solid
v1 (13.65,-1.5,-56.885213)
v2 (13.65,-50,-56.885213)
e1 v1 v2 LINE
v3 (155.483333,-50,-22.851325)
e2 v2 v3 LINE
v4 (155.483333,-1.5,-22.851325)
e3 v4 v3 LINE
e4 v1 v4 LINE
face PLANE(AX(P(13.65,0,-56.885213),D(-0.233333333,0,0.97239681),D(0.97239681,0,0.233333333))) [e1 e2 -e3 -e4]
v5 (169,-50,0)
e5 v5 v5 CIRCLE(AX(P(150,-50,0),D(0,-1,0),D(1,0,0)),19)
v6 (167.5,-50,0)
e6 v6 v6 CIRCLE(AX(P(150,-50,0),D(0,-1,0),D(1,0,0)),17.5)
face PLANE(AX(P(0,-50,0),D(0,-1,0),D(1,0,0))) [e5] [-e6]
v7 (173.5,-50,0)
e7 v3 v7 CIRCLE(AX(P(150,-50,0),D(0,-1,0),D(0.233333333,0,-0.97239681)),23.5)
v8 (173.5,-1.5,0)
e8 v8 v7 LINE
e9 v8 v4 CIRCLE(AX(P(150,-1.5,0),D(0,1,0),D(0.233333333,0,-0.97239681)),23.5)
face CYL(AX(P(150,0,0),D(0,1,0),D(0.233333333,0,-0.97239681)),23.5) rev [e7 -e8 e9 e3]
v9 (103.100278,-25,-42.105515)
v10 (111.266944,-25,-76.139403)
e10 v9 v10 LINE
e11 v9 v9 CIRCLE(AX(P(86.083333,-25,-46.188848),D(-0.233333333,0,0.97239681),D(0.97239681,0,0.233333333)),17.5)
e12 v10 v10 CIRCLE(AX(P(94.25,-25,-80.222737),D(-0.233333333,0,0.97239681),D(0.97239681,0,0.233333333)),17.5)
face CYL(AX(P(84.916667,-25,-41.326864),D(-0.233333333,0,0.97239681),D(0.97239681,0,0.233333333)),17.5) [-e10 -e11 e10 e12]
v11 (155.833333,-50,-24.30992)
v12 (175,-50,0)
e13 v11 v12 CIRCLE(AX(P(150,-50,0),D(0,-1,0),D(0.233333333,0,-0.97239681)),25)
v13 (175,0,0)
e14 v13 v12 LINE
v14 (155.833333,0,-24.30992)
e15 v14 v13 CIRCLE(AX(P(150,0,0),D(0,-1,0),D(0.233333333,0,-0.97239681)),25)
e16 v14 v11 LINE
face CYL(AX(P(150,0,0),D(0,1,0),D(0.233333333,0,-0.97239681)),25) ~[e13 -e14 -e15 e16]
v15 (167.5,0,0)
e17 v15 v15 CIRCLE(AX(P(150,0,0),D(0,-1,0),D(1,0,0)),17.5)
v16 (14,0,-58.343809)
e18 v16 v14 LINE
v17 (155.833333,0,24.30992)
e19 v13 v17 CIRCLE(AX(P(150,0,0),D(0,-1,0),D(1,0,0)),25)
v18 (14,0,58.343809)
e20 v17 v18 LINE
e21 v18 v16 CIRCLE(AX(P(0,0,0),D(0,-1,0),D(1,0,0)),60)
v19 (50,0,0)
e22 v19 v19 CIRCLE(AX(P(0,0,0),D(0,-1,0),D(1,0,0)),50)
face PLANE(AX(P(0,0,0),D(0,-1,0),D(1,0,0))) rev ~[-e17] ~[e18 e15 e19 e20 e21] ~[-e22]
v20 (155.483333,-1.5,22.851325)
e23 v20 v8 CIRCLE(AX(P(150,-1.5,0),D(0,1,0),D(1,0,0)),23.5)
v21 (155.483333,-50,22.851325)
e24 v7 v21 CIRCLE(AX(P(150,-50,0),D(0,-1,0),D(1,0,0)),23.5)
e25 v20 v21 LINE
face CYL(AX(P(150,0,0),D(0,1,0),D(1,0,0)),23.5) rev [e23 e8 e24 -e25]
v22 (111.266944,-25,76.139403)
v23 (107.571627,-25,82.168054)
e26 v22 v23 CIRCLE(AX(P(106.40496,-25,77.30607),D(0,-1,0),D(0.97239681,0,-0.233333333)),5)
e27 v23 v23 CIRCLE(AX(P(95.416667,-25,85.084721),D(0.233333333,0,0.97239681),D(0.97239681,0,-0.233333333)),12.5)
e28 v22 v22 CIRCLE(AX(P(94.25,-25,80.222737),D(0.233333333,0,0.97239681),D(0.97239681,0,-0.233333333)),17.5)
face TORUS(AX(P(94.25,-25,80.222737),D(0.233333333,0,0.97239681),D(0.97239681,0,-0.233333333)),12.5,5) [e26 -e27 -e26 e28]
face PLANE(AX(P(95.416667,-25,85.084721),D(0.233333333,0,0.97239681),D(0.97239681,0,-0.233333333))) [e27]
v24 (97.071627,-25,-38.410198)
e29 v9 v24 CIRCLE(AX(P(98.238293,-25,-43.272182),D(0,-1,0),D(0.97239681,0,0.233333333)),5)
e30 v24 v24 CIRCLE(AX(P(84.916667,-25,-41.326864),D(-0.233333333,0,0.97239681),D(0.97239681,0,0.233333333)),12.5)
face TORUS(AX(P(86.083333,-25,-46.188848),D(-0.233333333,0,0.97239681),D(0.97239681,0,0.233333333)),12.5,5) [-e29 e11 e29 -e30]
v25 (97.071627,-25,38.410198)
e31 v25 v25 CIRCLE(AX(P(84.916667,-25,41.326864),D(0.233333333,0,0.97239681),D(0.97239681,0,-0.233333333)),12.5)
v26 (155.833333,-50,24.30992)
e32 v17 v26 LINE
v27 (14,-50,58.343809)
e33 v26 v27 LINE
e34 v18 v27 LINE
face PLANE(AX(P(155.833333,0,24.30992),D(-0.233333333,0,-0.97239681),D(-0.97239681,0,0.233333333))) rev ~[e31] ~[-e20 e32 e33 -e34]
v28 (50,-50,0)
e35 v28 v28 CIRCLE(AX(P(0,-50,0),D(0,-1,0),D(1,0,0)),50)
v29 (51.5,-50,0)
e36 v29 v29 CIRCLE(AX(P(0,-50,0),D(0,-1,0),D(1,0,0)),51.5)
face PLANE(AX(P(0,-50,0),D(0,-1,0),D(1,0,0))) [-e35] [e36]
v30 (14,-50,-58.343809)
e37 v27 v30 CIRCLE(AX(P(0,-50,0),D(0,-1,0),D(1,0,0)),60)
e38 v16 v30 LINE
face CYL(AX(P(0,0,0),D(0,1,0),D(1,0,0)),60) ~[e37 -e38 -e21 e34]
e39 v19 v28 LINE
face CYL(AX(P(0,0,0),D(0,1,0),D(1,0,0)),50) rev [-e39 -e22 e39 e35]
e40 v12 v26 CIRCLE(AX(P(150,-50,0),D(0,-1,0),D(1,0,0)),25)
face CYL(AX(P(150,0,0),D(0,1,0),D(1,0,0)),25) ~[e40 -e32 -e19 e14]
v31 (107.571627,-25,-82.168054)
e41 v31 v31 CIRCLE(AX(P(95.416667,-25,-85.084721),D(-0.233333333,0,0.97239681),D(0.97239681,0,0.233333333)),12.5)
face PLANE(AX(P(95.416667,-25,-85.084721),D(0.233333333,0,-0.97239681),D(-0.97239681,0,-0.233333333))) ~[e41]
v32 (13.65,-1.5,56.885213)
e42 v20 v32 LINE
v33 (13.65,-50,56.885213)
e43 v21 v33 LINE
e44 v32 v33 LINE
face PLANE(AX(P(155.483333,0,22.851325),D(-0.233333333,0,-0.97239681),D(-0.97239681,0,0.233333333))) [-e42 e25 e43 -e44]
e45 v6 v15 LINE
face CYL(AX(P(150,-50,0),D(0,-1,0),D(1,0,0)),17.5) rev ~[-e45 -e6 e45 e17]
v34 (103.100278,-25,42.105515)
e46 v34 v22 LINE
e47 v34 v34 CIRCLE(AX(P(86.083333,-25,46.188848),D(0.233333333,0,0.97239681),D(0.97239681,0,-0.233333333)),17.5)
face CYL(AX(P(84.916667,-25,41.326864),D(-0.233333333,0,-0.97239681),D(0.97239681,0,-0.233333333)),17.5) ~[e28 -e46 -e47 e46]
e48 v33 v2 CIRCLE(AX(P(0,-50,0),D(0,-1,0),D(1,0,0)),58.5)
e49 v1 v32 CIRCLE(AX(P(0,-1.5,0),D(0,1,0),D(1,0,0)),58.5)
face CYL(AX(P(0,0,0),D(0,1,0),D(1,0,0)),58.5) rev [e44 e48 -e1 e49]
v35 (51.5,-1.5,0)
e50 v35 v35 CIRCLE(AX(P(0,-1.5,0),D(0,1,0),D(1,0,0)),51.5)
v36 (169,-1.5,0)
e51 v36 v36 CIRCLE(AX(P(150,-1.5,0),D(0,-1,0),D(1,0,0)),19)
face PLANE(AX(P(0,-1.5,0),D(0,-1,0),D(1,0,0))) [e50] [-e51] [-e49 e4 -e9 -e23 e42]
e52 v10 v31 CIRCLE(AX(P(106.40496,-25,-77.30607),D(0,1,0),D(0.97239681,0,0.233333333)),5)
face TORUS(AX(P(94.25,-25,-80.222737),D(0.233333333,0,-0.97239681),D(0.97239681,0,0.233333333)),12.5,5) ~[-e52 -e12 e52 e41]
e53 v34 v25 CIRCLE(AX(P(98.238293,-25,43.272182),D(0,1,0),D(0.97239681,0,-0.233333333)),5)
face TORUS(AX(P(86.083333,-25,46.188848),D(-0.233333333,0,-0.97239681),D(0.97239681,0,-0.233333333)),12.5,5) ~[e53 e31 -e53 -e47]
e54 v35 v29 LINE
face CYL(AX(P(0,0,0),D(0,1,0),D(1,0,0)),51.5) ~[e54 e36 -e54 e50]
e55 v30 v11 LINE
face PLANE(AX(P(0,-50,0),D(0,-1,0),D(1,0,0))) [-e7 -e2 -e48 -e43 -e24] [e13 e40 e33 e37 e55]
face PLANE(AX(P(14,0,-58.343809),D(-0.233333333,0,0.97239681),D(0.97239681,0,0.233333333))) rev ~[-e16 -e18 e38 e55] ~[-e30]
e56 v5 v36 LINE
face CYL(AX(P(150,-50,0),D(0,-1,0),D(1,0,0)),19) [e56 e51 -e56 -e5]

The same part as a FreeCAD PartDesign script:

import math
import FreeCAD as App
import Part
import Sketcher

V = App.Vector


def edges_at(feature, points):
    """Names of the edges that pass closest to the given points."""
    edges = feature.Shape.Edges
    near = lambda p: min(range(len(edges)), key=lambda i: edges[i].distToShape(Part.Vertex(*p))[0])
    return sorted({f"Edge{near(p) + 1}" for p in points})


def faces_at(feature, points):
    """Names of the faces that lie closest to the given points."""
    faces = feature.Shape.Faces
    near = lambda p: min(range(len(faces)), key=lambda i: faces[i].distToShape(Part.Vertex(*p))[0])
    return sorted({f"Face{near(p) + 1}" for p in points})

doc = App.newDocument("Part")
body = doc.addObject("PartDesign::Body", "Body")

sketch1 = doc.addObject("Sketcher::SketchObject", "Sketch")
body.addObject(sketch1)
sketch1.AttachmentSupport = (doc.XZ_Plane, [""])
sketch1.MapMode = "FlatFace"
sketch1.addGeometry(Part.ArcOfCircle(Part.Circle(V(0, 0, 0), V(0, 0, 1), 60), math.radians(76.506601), math.radians(283.493399)), False)
sketch1.addGeometry(Part.LineSegment(V(14, -58.343809, 0), V(155.833333, -24.30992, 0)), False)
sketch1.addGeometry(Part.ArcOfCircle(Part.Circle(V(150, 0, 0), V(0, 0, 1), 25), math.radians(-76.506601), math.radians(0)), False)
sketch1.addGeometry(Part.ArcOfCircle(Part.Circle(V(150, 0, 0), V(0, 0, 1), 25), math.radians(0), math.radians(76.506601)), False)
sketch1.addGeometry(Part.LineSegment(V(155.833333, 24.30992, 0), V(14, 58.343809, 0)), False)
sketch1.addGeometry(Part.Circle(V(0, 0, 0), V(0, 0, 1), 50), False)
sketch1.addConstraint(Sketcher.Constraint("Tangent", 0, 2, 1, 1))
sketch1.addConstraint(Sketcher.Constraint("Tangent", 1, 2, 2, 1))
sketch1.addConstraint(Sketcher.Constraint("Tangent", 2, 2, 3, 1))
sketch1.addConstraint(Sketcher.Constraint("Tangent", 3, 2, 4, 1))
sketch1.addConstraint(Sketcher.Constraint("Tangent", 4, 2, 0, 1))
sketch1.addConstraint(Sketcher.Constraint("Coincident", 0, 3, -1, 1))
sketch1.addConstraint(Sketcher.Constraint("Coincident", 5, 3, -1, 1))
sketch1.addConstraint(Sketcher.Constraint("Equal", 2, 3))
sketch1.addConstraint(Sketcher.Constraint("PointOnObject", 2, 3, -1))
sketch1.addConstraint(Sketcher.Constraint("PointOnObject", 2, 2, -1))
sketch1.addConstraint(Sketcher.Constraint("Diameter", 5, 100.0))
sketch1.addConstraint(Sketcher.Constraint("Radius", 0, 60.0))
sketch1.addConstraint(Sketcher.Constraint("Radius", 2, 25.0))
sketch1.addConstraint(Sketcher.Constraint("DistanceX", -1, 1, 2, 3, 150.0))
pad1 = doc.addObject("PartDesign::Pad", "Pad")
body.addObject(pad1)
pad1.Profile = sketch1
pad1.Length = 50

sketch2 = doc.addObject("Sketcher::SketchObject", "Sketch001")
body.addObject(sketch2)
sketch2.AttachmentSupport = (doc.XZ_Plane, [""])
sketch2.MapMode = "FlatFace"
sketch2.AttachmentOffset = App.Placement(V(0, 0, 50), App.Rotation())
sketch2.addGeometry(Part.Circle(V(150, 0, 0), V(0, 0, 1), 17.5), False)
sketch2.addConstraint(Sketcher.Constraint("PointOnObject", 0, 3, -1))
sketch2.addConstraint(Sketcher.Constraint("Diameter", 0, 35.0))
sketch2.addConstraint(Sketcher.Constraint("DistanceX", -1, 1, 0, 3, 150.0))
pocket1 = doc.addObject("PartDesign::Pocket", "Pocket")
body.addObject(pocket1)
pocket1.Profile = sketch2
pocket1.Type = "ThroughAll"
doc.recompute()

thickness = doc.addObject("PartDesign::Thickness", "Thickness")
body.addObject(thickness)
thickness.Base = (pocket1, faces_at(pocket1, [(57.5, -50, 0)]))
thickness.Value = 1.5
thickness.Reversed = True
thickness.Join = "Arc"
body2 = doc.addObject("PartDesign::Body", "Body001")

sketch3 = doc.addObject("Sketcher::SketchObject", "Sketch002")
body2.addObject(sketch3)
sketch3.Placement = App.Placement(V(14, 0, 58.343809), App.Rotation(V(0.97239681, 0, -0.233333333), V(0, 1, 0), V(0.233333333, 0, 0.97239681), "ZXY"))
sketch3.addGeometry(Part.Circle(V(72.929761, -25, 0), V(0, 0, 1), 17.5), False)
sketch3.addConstraint(Sketcher.Constraint("Diameter", 0, 35.0))
sketch3.addConstraint(Sketcher.Constraint("DistanceY", 0, 3, -1, 1, 25.0))
sketch3.addConstraint(Sketcher.Constraint("DistanceX", -1, 1, 0, 3, 72.929761))
pad2 = doc.addObject("PartDesign::Pad", "Pad001")
body2.addObject(pad2)
pad2.Profile = sketch3
pad2.Length = 45
doc.recompute()

fillet = doc.addObject("PartDesign::Fillet", "Fillet")
body2.addObject(fillet)
fillet.Base = (pad2, edges_at(pad2, [(78.4, -25, 89.168), (67.9, -25, 45.41)]))
fillet.Radius = 5
doc.recompute()

body3 = doc.addObject("PartDesign::Body", "Body002")
body3.BaseFeature = body2
boolean = doc.addObject("PartDesign::Boolean", "Boolean")
body.addObject(boolean)
boolean.Type = "Fuse"
boolean.addObjects([body3])
doc.recompute()

mirroring = doc.addObject("Part::Mirroring", "Mirroring")
mirroring.Source = body2
mirroring.Base = V(0, 0, 0)
mirroring.Normal = V(0, 0, 1)
body4 = doc.addObject("PartDesign::Body", "Body003")
body4.BaseFeature = mirroring
boolean2 = doc.addObject("PartDesign::Boolean", "Boolean001")
body.addObject(boolean2)
boolean2.Type = "Fuse"
boolean2.addObjects([body4])
doc.recompute()
mirroring.Visibility = False

doc.recompute()
